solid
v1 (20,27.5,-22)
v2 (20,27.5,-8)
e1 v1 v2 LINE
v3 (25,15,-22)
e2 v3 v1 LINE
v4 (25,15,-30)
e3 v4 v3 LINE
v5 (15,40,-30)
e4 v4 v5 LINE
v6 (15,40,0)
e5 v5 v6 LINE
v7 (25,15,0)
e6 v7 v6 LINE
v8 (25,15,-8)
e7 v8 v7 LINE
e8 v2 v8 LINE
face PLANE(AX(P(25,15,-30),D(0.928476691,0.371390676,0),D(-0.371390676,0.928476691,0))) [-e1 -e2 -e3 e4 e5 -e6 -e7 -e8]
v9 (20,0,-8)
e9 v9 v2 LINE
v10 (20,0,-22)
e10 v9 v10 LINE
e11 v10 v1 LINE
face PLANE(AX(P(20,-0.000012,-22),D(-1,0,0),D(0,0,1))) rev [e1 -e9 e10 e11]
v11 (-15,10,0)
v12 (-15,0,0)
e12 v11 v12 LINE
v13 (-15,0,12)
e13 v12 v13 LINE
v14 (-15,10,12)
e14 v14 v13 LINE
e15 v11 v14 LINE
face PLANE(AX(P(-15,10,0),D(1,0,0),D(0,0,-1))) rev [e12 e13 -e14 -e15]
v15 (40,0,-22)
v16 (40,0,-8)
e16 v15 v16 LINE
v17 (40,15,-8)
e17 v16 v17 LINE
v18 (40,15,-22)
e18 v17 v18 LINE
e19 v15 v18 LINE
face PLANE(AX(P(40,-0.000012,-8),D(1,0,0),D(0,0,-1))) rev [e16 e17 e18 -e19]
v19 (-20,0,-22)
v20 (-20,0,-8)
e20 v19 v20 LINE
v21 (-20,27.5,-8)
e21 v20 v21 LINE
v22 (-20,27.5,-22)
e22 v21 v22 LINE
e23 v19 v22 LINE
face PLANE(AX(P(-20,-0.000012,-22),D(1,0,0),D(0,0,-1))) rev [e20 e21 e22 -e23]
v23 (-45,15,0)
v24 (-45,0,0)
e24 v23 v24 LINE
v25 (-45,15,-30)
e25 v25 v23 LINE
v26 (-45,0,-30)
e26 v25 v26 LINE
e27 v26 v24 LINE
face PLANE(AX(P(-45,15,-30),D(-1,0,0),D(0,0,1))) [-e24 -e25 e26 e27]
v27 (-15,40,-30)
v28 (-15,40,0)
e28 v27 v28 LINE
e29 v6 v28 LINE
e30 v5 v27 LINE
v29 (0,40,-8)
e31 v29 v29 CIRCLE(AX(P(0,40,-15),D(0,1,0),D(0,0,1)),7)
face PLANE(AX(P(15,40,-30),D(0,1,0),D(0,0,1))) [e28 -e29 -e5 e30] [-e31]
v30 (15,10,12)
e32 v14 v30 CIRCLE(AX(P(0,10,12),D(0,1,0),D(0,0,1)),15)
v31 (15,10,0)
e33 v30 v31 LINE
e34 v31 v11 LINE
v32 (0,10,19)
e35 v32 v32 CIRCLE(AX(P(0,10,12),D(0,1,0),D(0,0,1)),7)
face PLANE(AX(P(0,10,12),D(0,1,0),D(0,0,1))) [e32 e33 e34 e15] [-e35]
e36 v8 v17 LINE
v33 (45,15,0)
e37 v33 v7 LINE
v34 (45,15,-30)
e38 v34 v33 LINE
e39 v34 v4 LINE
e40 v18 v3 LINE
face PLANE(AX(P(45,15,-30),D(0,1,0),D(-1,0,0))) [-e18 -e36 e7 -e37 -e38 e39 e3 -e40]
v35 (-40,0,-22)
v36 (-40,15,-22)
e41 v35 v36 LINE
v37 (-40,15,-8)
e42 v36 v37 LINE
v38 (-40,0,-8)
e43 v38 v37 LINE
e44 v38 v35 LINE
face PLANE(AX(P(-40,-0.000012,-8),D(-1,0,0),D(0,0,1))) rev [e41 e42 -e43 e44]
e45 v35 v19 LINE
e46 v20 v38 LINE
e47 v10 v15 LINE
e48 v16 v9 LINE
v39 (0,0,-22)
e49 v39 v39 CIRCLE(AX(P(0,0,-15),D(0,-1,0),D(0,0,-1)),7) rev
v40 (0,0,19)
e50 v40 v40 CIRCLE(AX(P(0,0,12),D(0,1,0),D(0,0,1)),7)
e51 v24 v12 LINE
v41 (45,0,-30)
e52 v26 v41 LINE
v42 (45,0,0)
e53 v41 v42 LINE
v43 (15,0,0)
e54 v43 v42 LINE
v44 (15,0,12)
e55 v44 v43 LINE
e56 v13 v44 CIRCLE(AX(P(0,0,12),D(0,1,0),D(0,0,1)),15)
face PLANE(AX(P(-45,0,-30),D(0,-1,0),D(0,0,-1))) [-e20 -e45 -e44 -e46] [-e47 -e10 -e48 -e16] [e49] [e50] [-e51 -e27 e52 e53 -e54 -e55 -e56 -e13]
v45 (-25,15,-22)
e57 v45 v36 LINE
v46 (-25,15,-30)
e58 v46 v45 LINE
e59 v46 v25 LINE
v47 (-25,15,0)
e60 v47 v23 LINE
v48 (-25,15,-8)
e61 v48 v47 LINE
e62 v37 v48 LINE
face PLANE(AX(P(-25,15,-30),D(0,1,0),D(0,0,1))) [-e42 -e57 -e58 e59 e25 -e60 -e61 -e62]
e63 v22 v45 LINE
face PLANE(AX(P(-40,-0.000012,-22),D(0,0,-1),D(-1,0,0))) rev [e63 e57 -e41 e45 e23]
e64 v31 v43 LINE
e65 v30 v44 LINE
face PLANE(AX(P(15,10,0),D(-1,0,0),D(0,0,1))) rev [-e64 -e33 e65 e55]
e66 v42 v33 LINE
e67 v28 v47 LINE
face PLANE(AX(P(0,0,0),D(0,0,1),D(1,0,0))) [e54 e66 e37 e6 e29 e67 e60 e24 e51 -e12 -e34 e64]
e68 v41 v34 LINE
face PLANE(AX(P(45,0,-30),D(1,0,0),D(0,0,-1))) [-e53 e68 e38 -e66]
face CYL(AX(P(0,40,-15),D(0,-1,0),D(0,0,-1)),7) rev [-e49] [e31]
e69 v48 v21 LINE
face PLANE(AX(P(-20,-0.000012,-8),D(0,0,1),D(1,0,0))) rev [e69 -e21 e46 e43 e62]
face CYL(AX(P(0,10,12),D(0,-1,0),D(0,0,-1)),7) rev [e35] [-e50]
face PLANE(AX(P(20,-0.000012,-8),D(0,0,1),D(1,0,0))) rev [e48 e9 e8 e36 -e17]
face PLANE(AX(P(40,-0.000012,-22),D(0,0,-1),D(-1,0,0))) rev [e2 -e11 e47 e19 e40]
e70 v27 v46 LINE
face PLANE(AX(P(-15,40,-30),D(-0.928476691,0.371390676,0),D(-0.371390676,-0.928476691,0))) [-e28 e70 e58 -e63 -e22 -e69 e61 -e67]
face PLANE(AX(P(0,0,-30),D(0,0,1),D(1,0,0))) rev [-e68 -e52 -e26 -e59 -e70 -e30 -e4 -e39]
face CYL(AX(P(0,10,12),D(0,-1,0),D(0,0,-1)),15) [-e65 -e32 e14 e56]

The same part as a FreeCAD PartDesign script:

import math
import FreeCAD as App
import Part
import Sketcher
from FreeCAD import Vector
Q = App.Units.Quantity


def add_polygon(sketch, points):
    """Adds a closed chain of lines whose ends are joined by coincident constraints."""
    first, n = sketch.GeometryCount, len(points)
    for a, b in zip(points, points[1:] + points[:1]):
        sketch.addGeometry(Part.LineSegment(App.Vector(*a, 0), App.Vector(*b, 0)), False)
    for i in range(n):
        sketch.addConstraint(Sketcher.Constraint("Coincident", first + i, 2, first + (i + 1) % n, 1))

doc = App.newDocument("Part")
body = doc.addObject("PartDesign::Body", "Body")

# Sketch on XY plane
sketch1 = body.newObject("Sketcher::SketchObject", "Sketch")
sketch1.AttachmentSupport = (doc.getObject("XY_Plane"), [""])
sketch1.MapMode = "FlatFace"
add_polygon(sketch1, [(-45, 0), (45, 0), (45, 15), (25, 15), (15, 40), (-15, 40), (-25, 15), (-45, 15)])  # lines 0-7
sketch1.addConstraint([
    Sketcher.Constraint("Horizontal", 0),
    Sketcher.Constraint("Vertical", 1),
    Sketcher.Constraint("Horizontal", 2),
    Sketcher.Constraint("Horizontal", 4),
    Sketcher.Constraint("Horizontal", 6),
    Sketcher.Constraint("Vertical", 7),
    Sketcher.Constraint("Symmetric", 0, 2, 7, 2, -1, 1),
    Sketcher.Constraint("Symmetric", 2, 2, 5, 2, -2),
    Sketcher.Constraint("Equal", 3, 5),
    Sketcher.Constraint("DistanceX", 0, 1, 0, 2, Q("90 mm")),
    Sketcher.Constraint("DistanceX", 2, 2, 2, 1, Q("20 mm")),
    Sketcher.Constraint("DistanceX", 4, 2, 4, 1, Q("30 mm")),
    Sketcher.Constraint("DistanceY", 1, 1, 1, 2, Q("15 mm")),
    Sketcher.Constraint("DistanceY", -1, 1, 3, 2, Q("40 mm")),
])
pad1 = body.newObject("PartDesign::Pad", "Pad")
pad1.Profile = sketch1
pad1.Length = 30
pad1.Reversed = True

# Sketch on XZ plane
sketch2 = body.newObject("Sketcher::SketchObject", "Sketch001")
sketch2.AttachmentSupport = (doc.getObject("XZ_Plane"), [""])
sketch2.MapMode = "FlatFace"
add_polygon(sketch2, [(-40, -22), (-40, -8), (-20, -8), (-20, -22)])  # lines 0-3
add_polygon(sketch2, [(20, -22), (20, -8), (40, -8), (40, -22)])  # lines 4-7
sketch2.addConstraint([
    Sketcher.Constraint("Vertical", 0),
    Sketcher.Constraint("Horizontal", 1),
    Sketcher.Constraint("Vertical", 2),
    Sketcher.Constraint("Horizontal", 3),
    Sketcher.Constraint("Vertical", 4),
    Sketcher.Constraint("Horizontal", 5),
    Sketcher.Constraint("Vertical", 6),
    Sketcher.Constraint("Horizontal", 7),
    Sketcher.Constraint("Symmetric", 1, 2, 4, 2, -2),
    Sketcher.Constraint("Symmetric", 3, 2, 6, 2, -2),
    Sketcher.Constraint("DistanceX", 1, 1, 1, 2, Q("20 mm")),
    Sketcher.Constraint("DistanceY", 0, 1, 0, 2, Q("14 mm")),
    Sketcher.Constraint("DistanceX", 0, 2, -1, 1, Q("40 mm")),
    Sketcher.Constraint("DistanceY", 0, 2, -1, 1, Q("8 mm")),
])
pocket1 = body.newObject("PartDesign::Pocket", "Pocket")
pocket1.Profile = sketch2
pocket1.Type = "ThroughAll"
pocket1.Midplane = True

# Sketch on XZ plane
sketch3 = body.newObject("Sketcher::SketchObject", "Sketch002")
sketch3.AttachmentSupport = (doc.getObject("XZ_Plane"), [""])
sketch3.MapMode = "FlatFace"
sketch3.addGeometry(Part.Circle(Vector(0, -15, 0), Vector(0, 0, 1), 7), False)
sketch3.addConstraint([
    Sketcher.Constraint("PointOnObject", 0, 3, -2),
    Sketcher.Constraint("Diameter", 0, Q("14 mm")),
    Sketcher.Constraint("DistanceY", 0, 3, -1, 1, Q("15 mm")),
])
pocket2 = body.newObject("PartDesign::Pocket", "Pocket001")
pocket2.Profile = sketch3
pocket2.Type = "ThroughAll"
pocket2.Midplane = True

# Sketch on XZ plane
sketch4 = body.newObject("Sketcher::SketchObject", "Sketch003")
sketch4.AttachmentSupport = (doc.getObject("XZ_Plane"), [""])
sketch4.MapMode = "FlatFace"
sketch4.addGeometry([
    Part.LineSegment(Vector(-15, 0, 0), Vector(-15, 12, 0)),  # 0
    Part.ArcOfCircle(Part.Circle(Vector(0, 12, 0), Vector(0, 0, 1), 15), math.radians(0), math.radians(180)),  # 1
    Part.LineSegment(Vector(15, 12, 0), Vector(15, 0, 0)),  # 2
    Part.LineSegment(Vector(15, 0, 0), Vector(-15, 0, 0)),  # 3
    Part.Circle(Vector(0, 12, 0), Vector(0, 0, 1), 7),  # 4
], False)
sketch4.addConstraint([
    Sketcher.Constraint("Tangent", 0, 2, 1, 2),
    Sketcher.Constraint("Tangent", 1, 1, 2, 1),
    Sketcher.Constraint("Coincident", 2, 2, 3, 1),
    Sketcher.Constraint("Coincident", 3, 2, 0, 1),
    Sketcher.Constraint("Vertical", 0),
    Sketcher.Constraint("Vertical", 2),
    Sketcher.Constraint("Horizontal", 3),
    Sketcher.Constraint("Coincident", 4, 3, 1, 3),
    Sketcher.Constraint("Symmetric", 2, 2, 3, 2, -1, 1),
    Sketcher.Constraint("Diameter", 4, Q("14 mm")),
    Sketcher.Constraint("Radius", 1, Q("15 mm")),
    Sketcher.Constraint("DistanceY", 0, 1, 0, 2, Q("12 mm")),
])
pad2 = body.newObject("PartDesign::Pad", "Pad001")
pad2.Profile = sketch4
pad2.Length = 10
pad2.Reversed = True

doc.recompute()
